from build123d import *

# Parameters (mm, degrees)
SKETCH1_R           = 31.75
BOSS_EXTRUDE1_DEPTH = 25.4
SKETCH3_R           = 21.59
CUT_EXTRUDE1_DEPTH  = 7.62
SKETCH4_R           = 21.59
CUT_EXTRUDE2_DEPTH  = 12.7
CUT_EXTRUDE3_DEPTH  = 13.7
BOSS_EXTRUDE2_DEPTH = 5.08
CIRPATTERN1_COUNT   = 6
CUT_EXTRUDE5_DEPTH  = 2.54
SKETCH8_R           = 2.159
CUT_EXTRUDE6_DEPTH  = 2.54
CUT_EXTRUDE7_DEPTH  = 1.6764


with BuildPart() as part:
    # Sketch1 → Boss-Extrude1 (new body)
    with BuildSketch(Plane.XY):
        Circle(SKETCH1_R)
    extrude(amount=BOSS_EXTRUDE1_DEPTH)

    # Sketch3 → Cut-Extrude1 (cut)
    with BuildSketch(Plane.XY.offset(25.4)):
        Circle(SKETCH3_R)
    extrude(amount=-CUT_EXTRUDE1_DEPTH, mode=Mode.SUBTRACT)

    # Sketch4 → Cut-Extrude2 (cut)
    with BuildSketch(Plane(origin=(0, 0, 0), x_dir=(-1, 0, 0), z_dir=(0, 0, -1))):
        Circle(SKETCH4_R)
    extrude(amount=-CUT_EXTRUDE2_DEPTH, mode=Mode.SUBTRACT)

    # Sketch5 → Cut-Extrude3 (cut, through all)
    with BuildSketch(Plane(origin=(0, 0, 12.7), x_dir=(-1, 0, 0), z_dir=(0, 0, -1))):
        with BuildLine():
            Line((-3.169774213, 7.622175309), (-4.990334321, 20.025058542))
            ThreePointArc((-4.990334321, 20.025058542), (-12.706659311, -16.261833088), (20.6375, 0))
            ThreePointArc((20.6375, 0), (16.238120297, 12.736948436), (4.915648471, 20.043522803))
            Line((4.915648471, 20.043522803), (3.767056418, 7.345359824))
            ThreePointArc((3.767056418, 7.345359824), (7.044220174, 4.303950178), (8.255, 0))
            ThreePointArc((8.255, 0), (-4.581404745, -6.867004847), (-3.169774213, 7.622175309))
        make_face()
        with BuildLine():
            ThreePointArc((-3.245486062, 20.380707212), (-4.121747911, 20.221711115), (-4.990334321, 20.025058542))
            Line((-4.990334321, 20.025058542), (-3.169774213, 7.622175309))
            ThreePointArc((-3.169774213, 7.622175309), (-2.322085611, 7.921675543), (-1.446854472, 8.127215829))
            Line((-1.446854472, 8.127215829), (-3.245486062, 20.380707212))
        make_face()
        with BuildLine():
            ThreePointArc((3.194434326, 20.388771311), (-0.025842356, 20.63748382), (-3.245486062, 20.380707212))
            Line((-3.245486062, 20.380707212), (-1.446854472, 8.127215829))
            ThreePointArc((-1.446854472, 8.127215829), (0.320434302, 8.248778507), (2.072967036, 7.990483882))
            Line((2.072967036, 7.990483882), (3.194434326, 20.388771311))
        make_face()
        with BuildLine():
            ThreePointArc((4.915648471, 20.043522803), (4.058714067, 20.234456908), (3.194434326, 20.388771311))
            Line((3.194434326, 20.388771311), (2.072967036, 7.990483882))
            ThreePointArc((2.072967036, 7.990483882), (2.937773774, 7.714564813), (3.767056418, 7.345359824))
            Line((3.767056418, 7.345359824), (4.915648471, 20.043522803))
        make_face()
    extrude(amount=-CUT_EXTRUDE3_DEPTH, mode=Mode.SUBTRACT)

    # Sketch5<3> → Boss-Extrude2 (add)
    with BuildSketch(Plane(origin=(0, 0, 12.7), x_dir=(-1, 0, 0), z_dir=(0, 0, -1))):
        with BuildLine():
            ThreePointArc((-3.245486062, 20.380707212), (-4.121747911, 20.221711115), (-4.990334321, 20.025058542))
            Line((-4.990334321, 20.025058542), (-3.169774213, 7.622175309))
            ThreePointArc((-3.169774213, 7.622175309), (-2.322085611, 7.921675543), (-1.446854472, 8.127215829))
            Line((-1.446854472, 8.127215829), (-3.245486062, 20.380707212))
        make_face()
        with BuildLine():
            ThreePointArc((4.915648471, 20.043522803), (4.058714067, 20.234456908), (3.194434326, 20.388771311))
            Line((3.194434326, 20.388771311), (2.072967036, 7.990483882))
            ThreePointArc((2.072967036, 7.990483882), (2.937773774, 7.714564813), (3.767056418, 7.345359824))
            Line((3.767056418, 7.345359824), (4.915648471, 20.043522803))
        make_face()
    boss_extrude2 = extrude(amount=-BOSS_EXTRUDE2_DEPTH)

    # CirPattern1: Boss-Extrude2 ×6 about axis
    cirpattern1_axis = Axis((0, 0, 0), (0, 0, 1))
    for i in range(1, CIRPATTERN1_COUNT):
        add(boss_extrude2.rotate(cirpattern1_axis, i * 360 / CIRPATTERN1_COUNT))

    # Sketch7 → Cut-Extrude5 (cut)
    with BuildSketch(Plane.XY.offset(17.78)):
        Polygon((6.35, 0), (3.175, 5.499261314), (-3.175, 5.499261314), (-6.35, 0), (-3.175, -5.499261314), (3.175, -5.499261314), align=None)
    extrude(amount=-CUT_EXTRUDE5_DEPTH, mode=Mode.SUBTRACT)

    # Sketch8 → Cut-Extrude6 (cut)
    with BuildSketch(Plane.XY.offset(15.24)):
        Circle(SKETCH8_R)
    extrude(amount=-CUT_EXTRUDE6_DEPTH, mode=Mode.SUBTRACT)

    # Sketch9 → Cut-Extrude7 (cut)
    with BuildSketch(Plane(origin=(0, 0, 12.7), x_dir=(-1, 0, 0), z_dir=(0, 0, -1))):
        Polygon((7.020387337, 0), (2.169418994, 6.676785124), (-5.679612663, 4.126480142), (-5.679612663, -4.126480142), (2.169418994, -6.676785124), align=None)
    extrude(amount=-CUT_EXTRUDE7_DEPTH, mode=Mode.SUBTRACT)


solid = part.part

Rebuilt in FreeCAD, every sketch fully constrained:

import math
import FreeCAD as App
import Part
import Sketcher

V = App.Vector
Q = App.Units.Quantity

doc = App.newDocument("Part")
body = doc.addObject("PartDesign::Body", "Body")
body.AllowCompound = True

# Sketch on XY plane
sketch1 = body.newObject("Sketcher::SketchObject", "Sketch")
sketch1.AttachmentSupport = (doc.getObject("XY_Plane"), [""])
sketch1.MapMode = "FlatFace"
sketch1.addGeometry(Part.Circle(V(0, 0, 0), V(0, 0, 1), 32), False)
sketch1.addConstraint([
    Sketcher.Constraint("Coincident", 0, 3, -1, 1),
    Sketcher.Constraint("Diameter", 0, Q("2.5 in")),
])
pad1 = body.newObject("PartDesign::Pad", "Pad")
pad1.Profile = sketch1
pad1.Length = Q("1 in")

# Sketch on XY plane
sketch2 = body.newObject("Sketcher::SketchObject", "Sketch001")
sketch2.AttachmentSupport = (doc.getObject("XY_Plane"), [""])
sketch2.MapMode = "FlatFace"
sketch2.AttachmentOffset = App.Placement(V(0, 0, 1 * 25.4), App.Rotation())
sketch2.addGeometry(Part.Circle(V(0, 0, 0), V(0, 0, 1), 22), False)
sketch2.addConstraint([
    Sketcher.Constraint("Coincident", 0, 3, -1, 1),
    Sketcher.Constraint("Diameter", 0, Q("1.7 in")),
])
pocket1 = body.newObject("PartDesign::Pocket", "Pocket")
pocket1.Profile = sketch2
pocket1.Length = Q("0.3 in")

# Sketch on XY plane
sketch3 = body.newObject("Sketcher::SketchObject", "Sketch002")
sketch3.AttachmentSupport = (doc.getObject("XY_Plane"), [""])
sketch3.MapMode = "FlatFace"
sketch3.addGeometry(Part.Circle(V(0, 0, 0), V(0, 0, 1), 22), False)
sketch3.addConstraint([
    Sketcher.Constraint("Coincident", 0, 3, -1, 1),
    Sketcher.Constraint("Diameter", 0, Q("1.7 in")),
])
pocket2 = body.newObject("PartDesign::Pocket", "Pocket001")
pocket2.Profile = sketch3
pocket2.Length = Q("0.5 in")
pocket2.Reversed = True

# Sketch on XY plane
sketch4 = body.newObject("Sketcher::SketchObject", "Sketch003")
sketch4.AttachmentSupport = (doc.getObject("XY_Plane"), [""])
sketch4.MapMode = "FlatFace"
sketch4.AttachmentOffset = App.Placement(V(0, 0, 0.5 * 25.4), App.Rotation())
sketch4.addGeometry([
    Part.ArcOfCircle(Part.Circle(V(0, 0, 0), V(0, 0, 1), 20.6), math.radians(180), math.radians(436)),  # 0
    Part.ArcOfCircle(Part.Circle(V(0, 0, 0), V(0, 0, 1), 20.6), math.radians(104), math.radians(180)),  # 1
    Part.ArcOfCircle(Part.Circle(V(0, 0, 0), V(0, 0, 1), 20.6), math.radians(98.9), math.radians(103.78)),  # 2
    Part.ArcOfCircle(Part.Circle(V(0, 0, 0), V(0, 0, 1), 20.6), math.radians(80.95), math.radians(98.9)),  # 3
    Part.ArcOfCircle(Part.Circle(V(0, 0, 0), V(0, 0, 1), 20.6), math.radians(76.01), math.radians(80.95)),  # 4
    Part.ArcOfCircle(Part.Circle(V(0, 0, 0), V(0, 0, 1), 8.3), math.radians(117), math.radians(180)),  # 5
    Part.ArcOfCircle(Part.Circle(V(0, 0, 0), V(0, 0, 1), 8.3), math.radians(180), math.radians(427)),  # 6
    Part.ArcOfCircle(Part.Circle(V(0, 0, 0), V(0, 0, 1), 8.3), math.radians(67.42), math.radians(79.91)),  # 7
    Part.ArcOfCircle(Part.Circle(V(0, 0, 0), V(0, 0, 1), 8.3), math.radians(80), math.radians(105)),  # 8
    Part.ArcOfCircle(Part.Circle(V(0, 0, 0), V(0, 0, 1), 8.3), math.radians(104.54), math.radians(117.15)),  # 9
], False)
sketch4.addConstraint([
    Sketcher.Constraint("Tangent", 0, 1, 1, 2),
    Sketcher.Constraint("Tangent", 1, 1, 2, 2),
    Sketcher.Constraint("Tangent", 2, 1, 3, 2),
    Sketcher.Constraint("Tangent", 3, 1, 4, 2),
    Sketcher.Constraint("Tangent", 4, 1, 0, 2),
    Sketcher.Constraint("Tangent", 5, 2, 6, 1),
    Sketcher.Constraint("Tangent", 6, 2, 7, 1),
    Sketcher.Constraint("Tangent", 7, 2, 8, 1),
    Sketcher.Constraint("Tangent", 8, 2, 9, 1),
    Sketcher.Constraint("Tangent", 9, 2, 5, 1),
    Sketcher.Constraint("Coincident", 0, 3, -1, 1),
    Sketcher.Constraint("Coincident", 2, 3, -1, 1),
    Sketcher.Constraint("Coincident", 5, 3, -1, 1),
    Sketcher.Constraint("Coincident", 7, 3, -1, 1),
    Sketcher.Constraint("PointOnObject", 0, 1, -1),
    Sketcher.Constraint("PointOnObject", 5, 2, -1),
    Sketcher.Constraint("Radius", 0, Q("0.8125 in")),
    Sketcher.Constraint("Radius", 5, Q("0.325 in")),
    Sketcher.Constraint("DistanceX", 1, 1, -1, 1, 4.915648),
    Sketcher.Constraint("DistanceY", -1, 1, 2, 1, 20.388771),
    Sketcher.Constraint("DistanceY", -1, 1, 4, 1, 20.025059),
    Sketcher.Constraint("DistanceY", -1, 1, 9, 2, 7.34536),
    Sketcher.Constraint("DistanceX", 2, 1, 3, 1, 6.43992),
    Sketcher.Constraint("DistanceX", 7, 2, 6, 2, 1.72292),
    Sketcher.Constraint("DistanceY", 6, 2, 7, 2, 0.505041),
    Sketcher.Constraint("DistanceX", 8, 2, 7, 2, 3.519822),
])
pocket3 = body.newObject("PartDesign::Pocket", "Pocket002")
pocket3.Profile = sketch4
pocket3.Type = "ThroughAll"
pocket3.Reversed = True

# Sketch on XY plane
sketch5 = body.newObject("Sketcher::SketchObject", "Sketch004")
sketch5.AttachmentSupport = (doc.getObject("XY_Plane"), [""])
sketch5.MapMode = "FlatFace"
sketch5.AttachmentOffset = App.Placement(V(0, 0, 0.5 * 25.4), App.Rotation())
sketch5.addGeometry([
    Part.ArcOfCircle(Part.Circle(V(0, 0, 0), V(0, 0, 1), 20.6), math.radians(76.01), math.radians(80.95)),  # 0
    Part.LineSegment(V(5, 20, 0), V(3.2, 7.6, 0)),  # 1
    Part.ArcOfCircle(Part.Circle(V(0, 0, 0), V(0, 0, 1), 8.3), math.radians(67.42), math.radians(79.91)),  # 2
    Part.LineSegment(V(1.4, 8.1, 0), V(3.2, 20.4, 0)),  # 3
    Part.ArcOfCircle(Part.Circle(V(0, 0, 0), V(0, 0, 1), 20.6), math.radians(98.9), math.radians(103.78)),  # 4
    Part.LineSegment(V(-3.2, 20.4, 0), V(-2.1, 8, 0)),  # 5
    Part.ArcOfCircle(Part.Circle(V(0, 0, 0), V(0, 0, 1), 8.3), math.radians(104.54), math.radians(117.15)),  # 6
    Part.LineSegment(V(-3.8, 7.3, 0), V(-4.9, 20, 0)),  # 7
], False)
sketch5.addConstraint([
    Sketcher.Constraint("Coincident", 0, 1, 1, 1),
    Sketcher.Constraint("Coincident", 1, 2, 2, 1),
    Sketcher.Constraint("Coincident", 2, 2, 3, 1),
    Sketcher.Constraint("Coincident", 3, 2, 0, 2),
    Sketcher.Constraint("Coincident", 4, 1, 5, 1),
    Sketcher.Constraint("Coincident", 5, 2, 6, 1),
    Sketcher.Constraint("Coincident", 6, 2, 7, 1),
    Sketcher.Constraint("Coincident", 7, 2, 4, 2),
    Sketcher.Constraint("Coincident", 0, 3, -1, 1),
    Sketcher.Constraint("Coincident", 2, 3, -1, 1),
    Sketcher.Constraint("Coincident", 4, 3, -1, 1),
    Sketcher.Constraint("Coincident", 6, 3, -1, 1),
    Sketcher.Constraint("Equal", 0, 4),
    Sketcher.Constraint("Equal", 2, 6),
    Sketcher.Constraint("Parallel", 1, 3),
    Sketcher.Constraint("Parallel", 5, 7),
    Sketcher.Constraint("Radius", 0, Q("0.8125 in")),
    Sketcher.Constraint("Radius", 2, Q("0.325 in")),
    Sketcher.Constraint("DistanceY", -1, 1, 0, 1, 20.025059),
    Sketcher.Constraint("DistanceY", -1, 1, 4, 1, 20.388771),
    Sketcher.Constraint("DistanceY", -1, 1, 6, 2, 7.34536),
    Sketcher.Constraint("DistanceX", 7, 2, -1, 1, 4.915648),
    Sketcher.Constraint("DistanceX", 1, 2, 0, 1, 1.82056),
    Sketcher.Constraint("DistanceX", 2, 2, 1, 2, 1.72292),
])
pad2 = body.newObject("PartDesign::Pad", "Pad001")
pad2.Profile = sketch5
pad2.Length = Q("0.2 in")
doc.recompute()

polarpattern = body.newObject("PartDesign::PolarPattern", "PolarPattern")
polarpattern.Originals = [pad2]
polarpattern.Axis = (doc.getObject("Z_Axis"), [""])
polarpattern.Angle = 360
polarpattern.Occurrences = 6
body.Tip = polarpattern

# Sketch on XY plane
sketch6 = body.newObject("Sketcher::SketchObject", "Sketch005")
sketch6.AttachmentSupport = (doc.getObject("XY_Plane"), [""])
sketch6.MapMode = "FlatFace"
sketch6.AttachmentOffset = App.Placement(V(0, 0, 0.7 * 25.4), App.Rotation())
sketch6.addGeometry([
    Part.LineSegment(V(6, 0, 0), V(3, 5, 0)),  # 0
    Part.LineSegment(V(3, 5, 0), V(-3, 5, 0)),  # 1
    Part.LineSegment(V(-3, 5, 0), V(-6, 0, 0)),  # 2
    Part.LineSegment(V(-6, 0, 0), V(-3, -5, 0)),  # 3
    Part.LineSegment(V(-3, -5, 0), V(3, -5, 0)),  # 4
    Part.LineSegment(V(3, -5, 0), V(6, 0, 0)),  # 5
], False)
sketch6.addConstraint([
    Sketcher.Constraint("Coincident", 0, 2, 1, 1),
    Sketcher.Constraint("Coincident", 1, 2, 2, 1),
    Sketcher.Constraint("Coincident", 2, 2, 3, 1),
    Sketcher.Constraint("Coincident", 3, 2, 4, 1),
    Sketcher.Constraint("Coincident", 4, 2, 5, 1),
    Sketcher.Constraint("Coincident", 5, 2, 0, 1),
    Sketcher.Constraint("Horizontal", 1),
    Sketcher.Constraint("Horizontal", 4),
    Sketcher.Constraint("Symmetric", 0, 2, 3, 2, -1, 1),
    Sketcher.Constraint("Symmetric", 2, 2, 5, 2, -1, 1),
    Sketcher.Constraint("PointOnObject", 2, 2, -1),
    Sketcher.Constraint("Parallel", 2, 5),
    Sketcher.Constraint("Vertical", 1, 2, 3, 2),
    Sketcher.Constraint("Angle", 0, Q("120 deg")),
    Sketcher.Constraint("DistanceX", 1, 2, 1, 1, Q("0.25 in")),
    Sketcher.Constraint("DistanceX", 2, 2, 5, 2, Q("0.5 in")),
])
pocket4 = body.newObject("PartDesign::Pocket", "Pocket003")
pocket4.Profile = sketch6
pocket4.Length = Q("0.1 in")

# Sketch on XY plane
sketch7 = body.newObject("Sketcher::SketchObject", "Sketch006")
sketch7.AttachmentSupport = (doc.getObject("XY_Plane"), [""])
sketch7.MapMode = "FlatFace"
sketch7.AttachmentOffset = App.Placement(V(0, 0, 0.6 * 25.4), App.Rotation())
sketch7.addGeometry(Part.Circle(V(0, 0, 0), V(0, 0, 1), 2.2), False)
sketch7.addConstraint([
    Sketcher.Constraint("Coincident", 0, 3, -1, 1),
    Sketcher.Constraint("Diameter", 0, Q("0.17 in")),
])
pocket5 = body.newObject("PartDesign::Pocket", "Pocket004")
pocket5.Profile = sketch7
pocket5.Length = Q("0.1 in")

# Sketch on XY plane
sketch8 = body.newObject("Sketcher::SketchObject", "Sketch007")
sketch8.AttachmentSupport = (doc.getObject("XY_Plane"), [""])
sketch8.MapMode = "FlatFace"
sketch8.AttachmentOffset = App.Placement(V(0, 0, 0.5 * 25.4), App.Rotation())
sketch8.addGeometry([
    Part.LineSegment(V(-7, 0, 0), V(-2, 7, 0)),  # 0
    Part.LineSegment(V(-2, 7, 0), V(6, 4, 0)),  # 1
    Part.LineSegment(V(6, 4, 0), V(6, -4, 0)),  # 2
    Part.LineSegment(V(6, -4, 0), V(-2, -7, 0)),  # 3
    Part.LineSegment(V(-2, -7, 0), V(-7, 0, 0)),  # 4
], False)
sketch8.addConstraint([
    Sketcher.Constraint("Coincident", 0, 2, 1, 1),
    Sketcher.Constraint("Coincident", 1, 2, 2, 1),
    Sketcher.Constraint("Coincident", 2, 2, 3, 1),
    Sketcher.Constraint("Coincident", 3, 2, 4, 1),
    Sketcher.Constraint("Coincident", 4, 2, 0, 1),
    Sketcher.Constraint("Vertical", 2),
    Sketcher.Constraint("Symmetric", 0, 2, 3, 2, -1),
    Sketcher.Constraint("PointOnObject", 4, 2, -1),
    Sketcher.Constraint("Equal", 0, 1),
    Sketcher.Constraint("Equal", 1, 3),
    Sketcher.Constraint("Angle", 0, Q("54 deg")),
    Sketcher.Constraint("Angle", 1, Q("-18 deg")),
    Sketcher.Constraint("DistanceX", 4, 2, 1, 2, Q("0.5 in")),
    Sketcher.Constraint("DistanceX", 0, 2, -1, 1, 2.169419),
])
pocket6 = body.newObject("PartDesign::Pocket", "Pocket005")
pocket6.Profile = sketch8
pocket6.Length = Q("0.066 in")
pocket6.Reversed = True

doc.recompute()
